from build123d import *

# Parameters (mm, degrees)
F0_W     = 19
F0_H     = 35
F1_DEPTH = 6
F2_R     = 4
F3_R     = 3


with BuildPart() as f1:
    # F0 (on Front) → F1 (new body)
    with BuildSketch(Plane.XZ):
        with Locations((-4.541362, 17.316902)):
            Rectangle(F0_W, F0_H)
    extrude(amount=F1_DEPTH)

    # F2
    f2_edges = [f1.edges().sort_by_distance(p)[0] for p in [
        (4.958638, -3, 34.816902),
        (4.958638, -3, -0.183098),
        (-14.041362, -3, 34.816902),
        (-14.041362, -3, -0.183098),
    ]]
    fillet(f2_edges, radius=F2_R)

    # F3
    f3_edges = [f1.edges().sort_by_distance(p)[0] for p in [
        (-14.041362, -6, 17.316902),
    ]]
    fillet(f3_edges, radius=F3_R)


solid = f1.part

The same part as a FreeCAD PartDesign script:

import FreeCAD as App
import Part
import Sketcher
from FreeCAD import Vector
Q = App.Units.Quantity


def edges_at(feature, points):
    """Names of the edges that pass closest to the given points."""
    edges = feature.Shape.Edges
    near = lambda p: min(range(len(edges)), key=lambda i: edges[i].distToShape(Part.Vertex(*p))[0])
    return sorted({f"Edge{near(p) + 1}" for p in points})


def add_polygon(sketch, points):
    """Adds a closed chain of lines whose ends are joined by coincident constraints."""
    first, n = sketch.GeometryCount, len(points)
    for a, b in zip(points, points[1:] + points[:1]):
        sketch.addGeometry(Part.LineSegment(App.Vector(*a, 0), App.Vector(*b, 0)), False)
    for i in range(n):
        sketch.addConstraint(Sketcher.Constraint("Coincident", first + i, 2, first + (i + 1) % n, 1))

doc = App.newDocument("Part")
body = doc.addObject("PartDesign::Body", "Body")

# Sketch on XZ plane
sketch1 = doc.addObject("Sketcher::SketchObject", "Sketch")
body.addObject(sketch1)
sketch1.AttachmentSupport = (doc.XZ_Plane, [""])
sketch1.MapMode = "FlatFace"
add_polygon(sketch1, [(-14, 35), (-14, 0), (5, 0), (5, 35)])  # lines 0-3
sketch1.addConstraint(Sketcher.Constraint("Vertical", 0))
sketch1.addConstraint(Sketcher.Constraint("Horizontal", 1))
sketch1.addConstraint(Sketcher.Constraint("Vertical", 2))
sketch1.addConstraint(Sketcher.Constraint("Horizontal", 3))
sketch1.addConstraint(Sketcher.Constraint("DistanceX", 1, 1, 1, 2, Q("19 mm")))
sketch1.addConstraint(Sketcher.Constraint("DistanceY", 0, 2, 0, 1, Q("35 mm")))
sketch1.addConstraint(Sketcher.Constraint("DistanceX", 0, 2, -1, 1, Q("14.041362 mm")))
sketch1.addConstraint(Sketcher.Constraint("DistanceY", 0, 2, -1, 1, Q("0.183098 mm")))
pad1 = doc.addObject("PartDesign::Pad", "Pad")
body.addObject(pad1)
pad1.Profile = sketch1
pad1.Length = 6
doc.recompute()

fillet = doc.addObject("PartDesign::Fillet", "Fillet")
body.addObject(fillet)
fillet.Base = (pad1, edges_at(pad1, [
    (4.959, -3, 34.817),
    (4.959, -3, -0.183),
    (-14.041, -3, 34.817),
    (-14.041, -3, -0.183),
]))
fillet.Radius = 4
doc.recompute()

fillet2 = doc.addObject("PartDesign::Fillet", "Fillet001")
body.addObject(fillet2)
fillet2.Base = (fillet, edges_at(fillet, [(-14.041, -6, 17.317)]))
fillet2.Radius = 3

doc.recompute()
